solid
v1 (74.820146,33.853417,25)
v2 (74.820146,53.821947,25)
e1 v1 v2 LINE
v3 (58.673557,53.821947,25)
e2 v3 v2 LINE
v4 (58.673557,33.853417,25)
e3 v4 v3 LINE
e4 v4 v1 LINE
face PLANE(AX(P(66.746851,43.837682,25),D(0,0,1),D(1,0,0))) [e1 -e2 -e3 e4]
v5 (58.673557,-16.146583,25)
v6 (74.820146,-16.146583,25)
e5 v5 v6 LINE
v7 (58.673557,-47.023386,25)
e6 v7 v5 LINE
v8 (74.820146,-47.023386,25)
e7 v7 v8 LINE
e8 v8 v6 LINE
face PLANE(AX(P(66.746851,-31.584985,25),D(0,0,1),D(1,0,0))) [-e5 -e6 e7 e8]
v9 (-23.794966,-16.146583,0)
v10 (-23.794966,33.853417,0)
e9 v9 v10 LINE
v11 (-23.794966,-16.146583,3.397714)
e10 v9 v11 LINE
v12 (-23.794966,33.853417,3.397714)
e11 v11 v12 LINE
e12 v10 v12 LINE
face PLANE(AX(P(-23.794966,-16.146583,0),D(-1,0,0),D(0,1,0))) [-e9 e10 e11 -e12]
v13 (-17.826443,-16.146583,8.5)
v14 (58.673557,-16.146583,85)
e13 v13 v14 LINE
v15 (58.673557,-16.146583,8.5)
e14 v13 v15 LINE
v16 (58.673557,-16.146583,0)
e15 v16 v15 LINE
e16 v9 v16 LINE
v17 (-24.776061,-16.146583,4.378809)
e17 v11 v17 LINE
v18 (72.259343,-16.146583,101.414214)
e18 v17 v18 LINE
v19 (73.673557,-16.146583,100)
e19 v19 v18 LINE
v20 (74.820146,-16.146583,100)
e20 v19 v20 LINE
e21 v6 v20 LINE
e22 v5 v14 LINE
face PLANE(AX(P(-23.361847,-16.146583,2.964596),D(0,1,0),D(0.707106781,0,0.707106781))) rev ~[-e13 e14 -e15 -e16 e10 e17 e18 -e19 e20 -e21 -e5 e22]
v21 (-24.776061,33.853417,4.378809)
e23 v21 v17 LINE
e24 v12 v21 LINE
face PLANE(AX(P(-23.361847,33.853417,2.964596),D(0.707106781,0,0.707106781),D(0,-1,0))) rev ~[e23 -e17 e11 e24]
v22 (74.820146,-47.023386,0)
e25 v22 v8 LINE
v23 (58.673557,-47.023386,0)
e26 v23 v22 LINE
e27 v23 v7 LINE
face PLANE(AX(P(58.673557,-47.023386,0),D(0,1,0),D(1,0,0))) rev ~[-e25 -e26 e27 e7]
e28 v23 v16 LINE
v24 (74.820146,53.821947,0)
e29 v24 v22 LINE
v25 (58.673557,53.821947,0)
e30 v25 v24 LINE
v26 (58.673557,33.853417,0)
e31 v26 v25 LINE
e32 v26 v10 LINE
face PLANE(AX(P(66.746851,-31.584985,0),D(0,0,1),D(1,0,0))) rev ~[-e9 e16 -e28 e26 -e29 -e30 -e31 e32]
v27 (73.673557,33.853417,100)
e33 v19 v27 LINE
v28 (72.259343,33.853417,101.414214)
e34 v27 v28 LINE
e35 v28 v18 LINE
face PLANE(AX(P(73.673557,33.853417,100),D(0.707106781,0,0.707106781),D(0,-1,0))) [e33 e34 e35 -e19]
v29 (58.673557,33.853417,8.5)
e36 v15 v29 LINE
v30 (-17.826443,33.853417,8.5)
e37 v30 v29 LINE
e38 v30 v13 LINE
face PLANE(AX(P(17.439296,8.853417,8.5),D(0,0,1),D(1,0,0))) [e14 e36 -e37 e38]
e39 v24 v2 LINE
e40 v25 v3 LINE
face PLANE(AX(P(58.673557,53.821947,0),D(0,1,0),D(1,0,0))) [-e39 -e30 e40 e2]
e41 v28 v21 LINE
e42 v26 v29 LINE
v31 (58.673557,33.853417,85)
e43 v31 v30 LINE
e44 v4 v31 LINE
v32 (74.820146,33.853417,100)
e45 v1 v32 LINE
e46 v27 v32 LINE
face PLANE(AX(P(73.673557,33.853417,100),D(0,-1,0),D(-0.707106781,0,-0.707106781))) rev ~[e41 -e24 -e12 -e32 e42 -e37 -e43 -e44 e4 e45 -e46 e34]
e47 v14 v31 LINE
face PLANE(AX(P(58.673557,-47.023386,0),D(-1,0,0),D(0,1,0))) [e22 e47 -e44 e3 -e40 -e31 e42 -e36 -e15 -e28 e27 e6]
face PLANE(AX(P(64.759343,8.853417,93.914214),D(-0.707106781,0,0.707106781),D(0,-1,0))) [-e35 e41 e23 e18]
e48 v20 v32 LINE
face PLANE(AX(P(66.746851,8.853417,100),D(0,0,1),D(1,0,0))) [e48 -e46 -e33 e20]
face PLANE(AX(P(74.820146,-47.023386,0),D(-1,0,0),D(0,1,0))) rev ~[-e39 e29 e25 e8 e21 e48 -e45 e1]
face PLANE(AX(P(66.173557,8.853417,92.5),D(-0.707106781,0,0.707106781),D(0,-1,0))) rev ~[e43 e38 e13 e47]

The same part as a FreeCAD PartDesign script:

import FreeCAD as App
import Part
import Sketcher

V = App.Vector


def edges_at(feature, points):
    """Names of the edges that pass closest to the given points."""
    edges = feature.Shape.Edges
    near = lambda p: min(range(len(edges)), key=lambda i: edges[i].distToShape(Part.Vertex(*p))[0])
    return sorted({f"Edge{near(p) + 1}" for p in points})


def add_polygon(sketch, points):
    """Adds a closed chain of lines whose ends are joined by coincident constraints."""
    first, n = sketch.GeometryCount, len(points)
    for a, b in zip(points, points[1:] + points[:1]):
        sketch.addGeometry(Part.LineSegment(App.Vector(*a, 0), App.Vector(*b, 0)), False)
    for i in range(n):
        sketch.addConstraint(Sketcher.Constraint("Coincident", first + i, 2, first + (i + 1) % n, 1))

doc = App.newDocument("Part")
body = doc.addObject("PartDesign::Body", "Body")

# Sketch on XY plane
sketch1 = doc.addObject("Sketcher::SketchObject", "Sketch")
body.addObject(sketch1)
sketch1.AttachmentSupport = (doc.XY_Plane, [""])
sketch1.MapMode = "FlatFace"
add_polygon(sketch1, [(58.673557, 33.853417), (58.673557, -16.146583), (74.820146, -16.146583), (74.820146, 33.853417)])  # lines 0-3
sketch1.addConstraint([
    Sketcher.Constraint("Vertical", 0),
    Sketcher.Constraint("Horizontal", 1),
    Sketcher.Constraint("Vertical", 2),
    Sketcher.Constraint("Horizontal", 3),
    Sketcher.Constraint("DistanceY", 0, 2, 0, 1, 50.0),
    Sketcher.Constraint("DistanceX", 1, 1, 1, 2, 16.146589),
    Sketcher.Constraint("DistanceX", -1, 1, 0, 2, 58.673557),
    Sketcher.Constraint("DistanceY", 0, 2, -1, 1, 16.146583),
])
pad1 = doc.addObject("PartDesign::Pad", "Pad")
body.addObject(pad1)
pad1.Profile = sketch1
pad1.Length = 100

# Sketch on XY plane
sketch2 = doc.addObject("Sketcher::SketchObject", "Sketch001")
body.addObject(sketch2)
sketch2.AttachmentSupport = (doc.XY_Plane, [""])
sketch2.MapMode = "FlatFace"
add_polygon(sketch2, [(-23.794966, 33.853417), (-23.794966, -16.146583), (58.673557, -16.146583), (58.673557, 33.853417)])  # lines 0-3
sketch2.addConstraint([
    Sketcher.Constraint("Vertical", 0),
    Sketcher.Constraint("Horizontal", 1),
    Sketcher.Constraint("Vertical", 2),
    Sketcher.Constraint("Horizontal", 3),
    Sketcher.Constraint("DistanceY", 0, 2, 0, 1, 50.0),
    Sketcher.Constraint("DistanceX", 1, 1, 1, 2, 82.468523),
    Sketcher.Constraint("DistanceX", 0, 2, -1, 1, 23.794966),
    Sketcher.Constraint("DistanceY", 0, 2, -1, 1, 16.146583),
])
pad2 = doc.addObject("PartDesign::Pad", "Pad001")
body.addObject(pad2)
pad2.Profile = sketch2
pad2.Length = 8.5
doc.recompute()

chamfer = doc.addObject("PartDesign::Chamfer", "Chamfer")
body.addObject(chamfer)
chamfer.Base = (pad2, edges_at(pad2, [(58.674, 8.853, 100)]))
chamfer.Size = 15

# Sketch on an angled plane
sketch3 = doc.addObject("Sketcher::SketchObject", "Sketch002")
body.addObject(sketch3)
sketch3.Placement = App.Placement(V(-13.163222, 0, 13.163222), App.Rotation(V(0, -1, 0), V(0.707106781, 0, 0.707106781), V(-0.707106781, 0, 0.707106781), "ZXY"))
add_polygon(sketch3, [(-33.853417, 122.80575), (-33.853417, -14.423035), (16.146583, -14.423035), (16.146583, 122.80575)])  # lines 0-3
sketch3.addConstraint([
    Sketcher.Constraint("Vertical", 0),
    Sketcher.Constraint("Horizontal", 1),
    Sketcher.Constraint("Vertical", 2),
    Sketcher.Constraint("Horizontal", 3),
    Sketcher.Constraint("DistanceX", 1, 1, 1, 2, 50.0),
    Sketcher.Constraint("DistanceY", 0, 2, 0, 1, 137.228785),
    Sketcher.Constraint("DistanceY", -1, 1, 2, 2, 122.80575),
    Sketcher.Constraint("DistanceX", 0, 2, -1, 1, 33.853417),
])
pocket1 = doc.addObject("PartDesign::Pocket", "Pocket")
body.addObject(pocket1)
pocket1.Profile = sketch3
pocket1.Length = 28
pocket1.Reversed = True

# Sketch on an angled plane
sketch4 = doc.addObject("Sketcher::SketchObject", "Sketch003")
body.addObject(sketch4)
sketch4.Placement = App.Placement(V(-13.163222, 0, 13.163222), App.Rotation(V(0, -1, 0), V(0.707106781, 0, 0.707106781), V(-0.707106781, 0, 0.707106781), "ZXY"))
add_polygon(sketch4, [(-33.853417, 122.80575), (-33.853417, -14.423035), (16.146583, -14.423035), (16.146583, 122.80575)])  # lines 0-3
sketch4.addConstraint([
    Sketcher.Constraint("Vertical", 0),
    Sketcher.Constraint("Horizontal", 1),
    Sketcher.Constraint("Vertical", 2),
    Sketcher.Constraint("Horizontal", 3),
    Sketcher.Constraint("DistanceX", 1, 1, 1, 2, 50.0),
    Sketcher.Constraint("DistanceY", 0, 2, 0, 1, 137.228785),
    Sketcher.Constraint("DistanceY", -1, 1, 2, 2, 122.80575),
    Sketcher.Constraint("DistanceX", 0, 2, -1, 1, 33.853417),
])
pad3 = doc.addObject("PartDesign::Pad", "Pad002")
body.addObject(pad3)
pad3.Profile = sketch4
pad3.Length = 2

# Sketch on XY plane
sketch5 = doc.addObject("Sketcher::SketchObject", "Sketch004")
body.addObject(sketch5)
sketch5.AttachmentSupport = (doc.XY_Plane, [""])
sketch5.MapMode = "FlatFace"
add_polygon(sketch5, [(58.673557, -16.146583), (58.673557, -47.023386), (74.820146, -47.023386), (74.820146, -16.146583)])  # lines 0-3
add_polygon(sketch5, [(58.673557, 53.821947), (58.673557, 33.853417), (74.820146, 33.853417), (74.820146, 53.821947)])  # lines 4-7
sketch5.addConstraint([
    Sketcher.Constraint("Vertical", 0),
    Sketcher.Constraint("Horizontal", 1),
    Sketcher.Constraint("Vertical", 2),
    Sketcher.Constraint("Horizontal", 3),
    Sketcher.Constraint("Vertical", 4),
    Sketcher.Constraint("Horizontal", 5),
    Sketcher.Constraint("Vertical", 6),
    Sketcher.Constraint("Horizontal", 7),
    Sketcher.Constraint("Vertical", 3, 2, 4, 2),
    Sketcher.Constraint("Vertical", 2, 2, 5, 2),
    Sketcher.Constraint("DistanceY", 3, 2, 4, 2, 50.0),
    Sketcher.Constraint("DistanceX", 1, 1, 1, 2, 16.146589),
    Sketcher.Constraint("DistanceY", 4, 2, 4, 1, 19.968531),
    Sketcher.Constraint("DistanceY", 0, 2, 0, 1, 30.876802),
    Sketcher.Constraint("DistanceX", -1, 1, 0, 2, 58.673557),
    Sketcher.Constraint("DistanceY", 0, 2, -1, 1, 47.023386),
])
pad4 = doc.addObject("PartDesign::Pad", "Pad003")
body.addObject(pad4)
pad4.Profile = sketch5
pad4.Length = 25

doc.recompute()
